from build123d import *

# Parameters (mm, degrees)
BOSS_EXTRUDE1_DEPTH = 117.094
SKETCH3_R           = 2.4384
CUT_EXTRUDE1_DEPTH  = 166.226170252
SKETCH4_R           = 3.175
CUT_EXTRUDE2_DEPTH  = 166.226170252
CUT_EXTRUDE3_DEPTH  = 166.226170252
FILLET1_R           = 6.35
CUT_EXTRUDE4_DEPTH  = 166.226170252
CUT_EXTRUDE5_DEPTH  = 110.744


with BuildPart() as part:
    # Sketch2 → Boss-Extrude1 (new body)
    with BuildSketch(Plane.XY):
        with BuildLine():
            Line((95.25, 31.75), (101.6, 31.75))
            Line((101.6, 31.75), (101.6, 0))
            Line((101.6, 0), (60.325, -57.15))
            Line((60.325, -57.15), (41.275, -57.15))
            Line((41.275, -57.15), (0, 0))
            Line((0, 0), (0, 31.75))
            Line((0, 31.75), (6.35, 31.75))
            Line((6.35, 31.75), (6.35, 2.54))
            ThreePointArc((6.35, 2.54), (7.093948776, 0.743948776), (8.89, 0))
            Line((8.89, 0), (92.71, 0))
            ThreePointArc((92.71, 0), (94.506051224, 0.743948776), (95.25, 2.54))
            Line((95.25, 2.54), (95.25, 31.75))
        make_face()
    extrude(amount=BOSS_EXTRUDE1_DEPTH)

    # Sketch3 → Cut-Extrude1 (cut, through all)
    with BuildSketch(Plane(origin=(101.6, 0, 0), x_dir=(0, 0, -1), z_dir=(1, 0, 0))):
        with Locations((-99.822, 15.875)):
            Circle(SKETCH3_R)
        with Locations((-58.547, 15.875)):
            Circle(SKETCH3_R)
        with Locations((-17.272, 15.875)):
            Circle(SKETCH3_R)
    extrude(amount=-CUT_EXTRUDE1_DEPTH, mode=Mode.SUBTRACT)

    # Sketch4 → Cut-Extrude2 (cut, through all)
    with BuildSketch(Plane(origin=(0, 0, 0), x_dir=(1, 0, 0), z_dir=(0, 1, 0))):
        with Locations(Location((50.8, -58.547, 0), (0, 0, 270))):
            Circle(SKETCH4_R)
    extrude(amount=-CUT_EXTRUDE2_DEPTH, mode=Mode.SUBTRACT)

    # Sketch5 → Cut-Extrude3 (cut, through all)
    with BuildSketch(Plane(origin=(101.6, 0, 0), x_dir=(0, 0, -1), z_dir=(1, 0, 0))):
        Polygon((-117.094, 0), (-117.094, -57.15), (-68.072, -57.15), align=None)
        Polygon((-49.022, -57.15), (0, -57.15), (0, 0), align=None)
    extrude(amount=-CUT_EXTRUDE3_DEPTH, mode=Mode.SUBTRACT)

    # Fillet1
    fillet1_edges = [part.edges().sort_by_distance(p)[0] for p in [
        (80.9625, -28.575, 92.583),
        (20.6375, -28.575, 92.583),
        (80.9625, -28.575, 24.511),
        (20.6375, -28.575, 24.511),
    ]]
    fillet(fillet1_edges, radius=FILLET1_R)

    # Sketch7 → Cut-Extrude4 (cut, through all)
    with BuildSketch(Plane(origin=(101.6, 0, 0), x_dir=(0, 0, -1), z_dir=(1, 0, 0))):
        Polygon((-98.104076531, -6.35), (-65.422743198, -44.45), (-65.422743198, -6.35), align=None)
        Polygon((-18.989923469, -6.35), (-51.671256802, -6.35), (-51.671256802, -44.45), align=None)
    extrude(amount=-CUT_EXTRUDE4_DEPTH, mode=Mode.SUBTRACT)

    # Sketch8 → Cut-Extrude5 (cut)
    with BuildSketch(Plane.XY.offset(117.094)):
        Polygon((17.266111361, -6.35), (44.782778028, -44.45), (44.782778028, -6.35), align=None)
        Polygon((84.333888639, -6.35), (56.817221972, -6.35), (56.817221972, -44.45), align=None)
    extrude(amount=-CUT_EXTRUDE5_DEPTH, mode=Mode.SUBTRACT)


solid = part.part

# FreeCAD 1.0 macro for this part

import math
import FreeCAD as App
import Part
import Sketcher

V = App.Vector
Q = App.Units.Quantity


def edges_at(feature, points):
    """Names of the edges that pass closest to the given points."""
    edges = feature.Shape.Edges
    near = lambda p: min(range(len(edges)), key=lambda i: edges[i].distToShape(Part.Vertex(*p))[0])
    return sorted({f"Edge{near(p) + 1}" for p in points})


def add_polygon(sketch, points):
    """Adds a closed chain of lines whose ends are joined by coincident constraints."""
    first, n = sketch.GeometryCount, len(points)
    for a, b in zip(points, points[1:] + points[:1]):
        sketch.addGeometry(Part.LineSegment(App.Vector(*a, 0), App.Vector(*b, 0)), False)
    for i in range(n):
        sketch.addConstraint(Sketcher.Constraint("Coincident", first + i, 2, first + (i + 1) % n, 1))

doc = App.newDocument("Part")
body = doc.addObject("PartDesign::Body", "Body")

sketch1 = body.newObject("Sketcher::SketchObject", "Sketch")
sketch1.AttachmentSupport = (doc.getObject("XY_Plane"), [""])
sketch1.MapMode = "FlatFace"
sketch1.addGeometry(Part.LineSegment(V(101.6, 31.8, 0), V(95.2, 31.8, 0)), False)
sketch1.addGeometry(Part.LineSegment(V(95.2, 31.8, 0), V(95.2, 2.5, 0)), False)
sketch1.addGeometry(Part.ArcOfCircle(Part.Circle(V(92.7, 2.5, 0), V(0, 0, 1), 2.5), math.radians(-90), math.radians(0)), False)
sketch1.addGeometry(Part.LineSegment(V(92.7, 0, 0), V(8.9, 0, 0)), False)
sketch1.addGeometry(Part.ArcOfCircle(Part.Circle(V(8.9, 2.5, 0), V(0, 0, 1), 2.5), math.radians(-180), math.radians(-90)), False)
sketch1.addGeometry(Part.LineSegment(V(6.3, 2.5, 0), V(6.3, 31.8, 0)), False)
sketch1.addGeometry(Part.LineSegment(V(6.3, 31.8, 0), V(0, 31.8, 0)), False)
sketch1.addGeometry(Part.LineSegment(V(0, 31.8, 0), V(0, 0, 0)), False)
sketch1.addGeometry(Part.LineSegment(V(0, 0, 0), V(41.3, -57.1, 0)), False)
sketch1.addGeometry(Part.LineSegment(V(41.3, -57.1, 0), V(60.3, -57.1, 0)), False)
sketch1.addGeometry(Part.LineSegment(V(60.3, -57.1, 0), V(101.6, 0, 0)), False)
sketch1.addGeometry(Part.LineSegment(V(101.6, 0, 0), V(101.6, 31.8, 0)), False)
sketch1.addConstraint(Sketcher.Constraint("Coincident", 0, 2, 1, 1))
sketch1.addConstraint(Sketcher.Constraint("Tangent", 1, 2, 2, 2))
sketch1.addConstraint(Sketcher.Constraint("Tangent", 2, 1, 3, 1))
sketch1.addConstraint(Sketcher.Constraint("Tangent", 3, 2, 4, 2))
sketch1.addConstraint(Sketcher.Constraint("Tangent", 4, 1, 5, 1))
sketch1.addConstraint(Sketcher.Constraint("Coincident", 5, 2, 6, 1))
sketch1.addConstraint(Sketcher.Constraint("Coincident", 6, 2, 7, 1))
sketch1.addConstraint(Sketcher.Constraint("Coincident", 7, 2, 8, 1))
sketch1.addConstraint(Sketcher.Constraint("Coincident", 8, 2, 9, 1))
sketch1.addConstraint(Sketcher.Constraint("Coincident", 9, 2, 10, 1))
sketch1.addConstraint(Sketcher.Constraint("Coincident", 10, 2, 11, 1))
sketch1.addConstraint(Sketcher.Constraint("Coincident", 11, 2, 0, 1))
sketch1.addConstraint(Sketcher.Constraint("Horizontal", 0))
sketch1.addConstraint(Sketcher.Constraint("Vertical", 1))
sketch1.addConstraint(Sketcher.Constraint("Horizontal", 3))
sketch1.addConstraint(Sketcher.Constraint("Vertical", 5))
sketch1.addConstraint(Sketcher.Constraint("Horizontal", 6))
sketch1.addConstraint(Sketcher.Constraint("Vertical", 7))
sketch1.addConstraint(Sketcher.Constraint("Horizontal", 9))
sketch1.addConstraint(Sketcher.Constraint("Vertical", 11))
sketch1.addConstraint(Sketcher.Constraint("Coincident", 7, 2, -1, 1))
sketch1.addConstraint(Sketcher.Constraint("Equal", 2, 4))
sketch1.addConstraint(Sketcher.Constraint("PointOnObject", 2, 1, -1))
sketch1.addConstraint(Sketcher.Constraint("PointOnObject", 10, 2, -1))
sketch1.addConstraint(Sketcher.Constraint("Horizontal", 0, 2, 5, 2))
sketch1.addConstraint(Sketcher.Constraint("Equal", 0, 6))
sketch1.addConstraint(Sketcher.Constraint("Equal", 8, 10))
sketch1.addConstraint(Sketcher.Constraint("Radius", 2, Q("0.1 in")))
sketch1.addConstraint(Sketcher.Constraint("DistanceX", 3, 2, 3, 1, Q("3.3 in")))
sketch1.addConstraint(Sketcher.Constraint("DistanceX", -1, 1, 10, 2, Q("4 in")))
sketch1.addConstraint(Sketcher.Constraint("DistanceX", 9, 1, 9, 2, Q("0.75 in")))
sketch1.addConstraint(Sketcher.Constraint("DistanceY", 1, 2, 1, 1, Q("1.15 in")))
sketch1.addConstraint(Sketcher.Constraint("DistanceY", 8, 2, -1, 1, Q("2.25 in")))
pad1 = body.newObject("PartDesign::Pad", "Pad")
pad1.Profile = sketch1
pad1.Length = Q("4.61 in")

sketch2 = body.newObject("Sketcher::SketchObject", "Sketch001")
sketch2.AttachmentSupport = (doc.getObject("YZ_Plane"), [""])
sketch2.MapMode = "FlatFace"
sketch2.AttachmentOffset = App.Placement(V(0, 0, 4 * 25.4), App.Rotation())
sketch2.addGeometry(Part.Circle(V(15.9, 99.8, 0), V(0, 0, 1), 2.4), False)
sketch2.addGeometry(Part.Circle(V(15.9, 58.5, 0), V(0, 0, 1), 2.4), False)
sketch2.addGeometry(Part.Circle(V(15.9, 17.3, 0), V(0, 0, 1), 2.4), False)
sketch2.addConstraint(Sketcher.Constraint("Equal", 0, 1))
sketch2.addConstraint(Sketcher.Constraint("Equal", 1, 2))
sketch2.addConstraint(Sketcher.Constraint("Vertical", 0, 3, 1, 3))
sketch2.addConstraint(Sketcher.Constraint("Vertical", 1, 3, 2, 3))
sketch2.addConstraint(Sketcher.Constraint("Diameter", 0, Q("0.192 in")))
sketch2.addConstraint(Sketcher.Constraint("DistanceY", -1, 1, 0, 3, Q("3.93 in")))
sketch2.addConstraint(Sketcher.Constraint("DistanceY", -1, 1, 2, 3, Q("0.68 in")))
sketch2.addConstraint(Sketcher.Constraint("DistanceX", -1, 1, 0, 3, Q("0.625 in")))
sketch2.addConstraint(Sketcher.Constraint("DistanceY", -1, 1, 1, 3, Q("2.305 in")))
pocket1 = body.newObject("PartDesign::Pocket", "Pocket")
pocket1.Profile = sketch2
pocket1.Type = "ThroughAll"

sketch3 = body.newObject("Sketcher::SketchObject", "Sketch002")
sketch3.AttachmentSupport = (doc.getObject("XZ_Plane"), [""])
sketch3.MapMode = "FlatFace"
sketch3.addGeometry(Part.Circle(V(50.8, 58.5, 0), V(0, 0, 1), 3.2), False)
sketch3.addConstraint(Sketcher.Constraint("Diameter", 0, Q("0.25 in")))
sketch3.addConstraint(Sketcher.Constraint("DistanceX", -1, 1, 0, 3, Q("2 in")))
sketch3.addConstraint(Sketcher.Constraint("DistanceY", -1, 1, 0, 3, Q("2.305 in")))
pocket2 = body.newObject("PartDesign::Pocket", "Pocket001")
pocket2.Profile = sketch3
pocket2.Type = "ThroughAll"
pocket2.Reversed = True

sketch4 = body.newObject("Sketcher::SketchObject", "Sketch003")
sketch4.AttachmentSupport = (doc.getObject("YZ_Plane"), [""])
sketch4.MapMode = "FlatFace"
sketch4.AttachmentOffset = App.Placement(V(0, 0, 4 * 25.4), App.Rotation())
add_polygon(sketch4, [(0, 117), (-57, 117), (-57, 68)])
add_polygon(sketch4, [(-57, 49), (-57, 0), (0, 0)])
sketch4.addConstraint(Sketcher.Constraint("Horizontal", 0))
sketch4.addConstraint(Sketcher.Constraint("Vertical", 1))
sketch4.addConstraint(Sketcher.Constraint("Vertical", 3))
sketch4.addConstraint(Sketcher.Constraint("Horizontal", 4))
sketch4.addConstraint(Sketcher.Constraint("Coincident", 4, 2, -1, 1))
sketch4.addConstraint(Sketcher.Constraint("PointOnObject", 2, 2, -2))
sketch4.addConstraint(Sketcher.Constraint("Vertical", 1, 2, 3, 2))
sketch4.addConstraint(Sketcher.Constraint("Equal", 1, 3))
sketch4.addConstraint(Sketcher.Constraint("DistanceX", 0, 2, 0, 1, Q("2.25 in")))
sketch4.addConstraint(Sketcher.Constraint("DistanceY", 1, 2, 1, 1, Q("1.93 in")))
sketch4.addConstraint(Sketcher.Constraint("DistanceY", -1, 1, 0, 2, Q("4.61 in")))
pocket3 = body.newObject("PartDesign::Pocket", "Pocket002")
pocket3.Profile = sketch4
pocket3.Type = "ThroughAll"
doc.recompute()

fillet = body.newObject("PartDesign::Fillet", "Fillet")
fillet.Base = (pocket3, edges_at(pocket3, [
    (80.963, -28.575, 92.583),
    (20.637, -28.575, 92.583),
    (80.963, -28.575, 24.511),
    (20.637, -28.575, 24.511),
]))
fillet.Radius = Q("0.25 in")

sketch5 = body.newObject("Sketcher::SketchObject", "Sketch004")
sketch5.AttachmentSupport = (doc.getObject("YZ_Plane"), [""])
sketch5.MapMode = "FlatFace"
sketch5.AttachmentOffset = App.Placement(V(0, 0, 4 * 25.4), App.Rotation())
add_polygon(sketch5, [(-6, 98), (-44, 65), (-6, 65)])
add_polygon(sketch5, [(-6, 19), (-6, 52), (-44, 52)])
sketch5.addConstraint(Sketcher.Constraint("Horizontal", 1))
sketch5.addConstraint(Sketcher.Constraint("Vertical", 2))
sketch5.addConstraint(Sketcher.Constraint("Vertical", 3))
sketch5.addConstraint(Sketcher.Constraint("Horizontal", 4))
sketch5.addConstraint(Sketcher.Constraint("Vertical", 2, 2, 3, 2))
sketch5.addConstraint(Sketcher.Constraint("Vertical", 0, 2, 4, 2))
sketch5.addConstraint(Sketcher.Constraint("Equal", 2, 3))
sketch5.addConstraint(Sketcher.Constraint("DistanceX", 1, 1, 1, 2, Q("1.5 in")))
sketch5.addConstraint(Sketcher.Constraint("DistanceX", 0, 2, -1, 1, Q("1.75 in")))
sketch5.addConstraint(Sketcher.Constraint("Distance", 0, Q("50.19641 mm")))
sketch5.addConstraint(Sketcher.Constraint("DistanceY", 3, 2, 2, 2, Q("46.43282 mm")))
sketch5.addConstraint(Sketcher.Constraint("DistanceY", -1, 1, 0, 2, Q("65.422743 mm")))
pocket4 = body.newObject("PartDesign::Pocket", "Pocket003")
pocket4.Profile = sketch5
pocket4.Type = "ThroughAll"

sketch6 = body.newObject("Sketcher::SketchObject", "Sketch005")
sketch6.AttachmentSupport = (doc.getObject("XY_Plane"), [""])
sketch6.MapMode = "FlatFace"
sketch6.AttachmentOffset = App.Placement(V(0, 0, 4.61 * 25.4), App.Rotation())
add_polygon(sketch6, [(17, -6), (45, -44), (45, -6)])
add_polygon(sketch6, [(84, -6), (57, -6), (57, -44)])
sketch6.addConstraint(Sketcher.Constraint("Vertical", 1))
sketch6.addConstraint(Sketcher.Constraint("Horizontal", 2))
sketch6.addConstraint(Sketcher.Constraint("Horizontal", 3))
sketch6.addConstraint(Sketcher.Constraint("Vertical", 4))
sketch6.addConstraint(Sketcher.Constraint("Horizontal", 2, 2, 3, 2))
sketch6.addConstraint(Sketcher.Constraint("Horizontal", 0, 2, 4, 2))
sketch6.addConstraint(Sketcher.Constraint("Equal", 2, 3))
sketch6.addConstraint(Sketcher.Constraint("DistanceY", 1, 1, 1, 2, Q("1.5 in")))
sketch6.addConstraint(Sketcher.Constraint("DistanceY", 0, 2, -1, 1, Q("1.75 in")))
sketch6.addConstraint(Sketcher.Constraint("DistanceX", 2, 2, 2, 1, Q("27.516667 mm")))
sketch6.addConstraint(Sketcher.Constraint("DistanceX", -1, 1, 0, 2, Q("44.782778 mm")))
sketch6.addConstraint(Sketcher.Constraint("DistanceX", -1, 1, 3, 2, Q("56.817222 mm")))
pocket5 = body.newObject("PartDesign::Pocket", "Pocket004")
pocket5.Profile = sketch6
pocket5.Length = Q("4.36 in")

doc.recompute()
